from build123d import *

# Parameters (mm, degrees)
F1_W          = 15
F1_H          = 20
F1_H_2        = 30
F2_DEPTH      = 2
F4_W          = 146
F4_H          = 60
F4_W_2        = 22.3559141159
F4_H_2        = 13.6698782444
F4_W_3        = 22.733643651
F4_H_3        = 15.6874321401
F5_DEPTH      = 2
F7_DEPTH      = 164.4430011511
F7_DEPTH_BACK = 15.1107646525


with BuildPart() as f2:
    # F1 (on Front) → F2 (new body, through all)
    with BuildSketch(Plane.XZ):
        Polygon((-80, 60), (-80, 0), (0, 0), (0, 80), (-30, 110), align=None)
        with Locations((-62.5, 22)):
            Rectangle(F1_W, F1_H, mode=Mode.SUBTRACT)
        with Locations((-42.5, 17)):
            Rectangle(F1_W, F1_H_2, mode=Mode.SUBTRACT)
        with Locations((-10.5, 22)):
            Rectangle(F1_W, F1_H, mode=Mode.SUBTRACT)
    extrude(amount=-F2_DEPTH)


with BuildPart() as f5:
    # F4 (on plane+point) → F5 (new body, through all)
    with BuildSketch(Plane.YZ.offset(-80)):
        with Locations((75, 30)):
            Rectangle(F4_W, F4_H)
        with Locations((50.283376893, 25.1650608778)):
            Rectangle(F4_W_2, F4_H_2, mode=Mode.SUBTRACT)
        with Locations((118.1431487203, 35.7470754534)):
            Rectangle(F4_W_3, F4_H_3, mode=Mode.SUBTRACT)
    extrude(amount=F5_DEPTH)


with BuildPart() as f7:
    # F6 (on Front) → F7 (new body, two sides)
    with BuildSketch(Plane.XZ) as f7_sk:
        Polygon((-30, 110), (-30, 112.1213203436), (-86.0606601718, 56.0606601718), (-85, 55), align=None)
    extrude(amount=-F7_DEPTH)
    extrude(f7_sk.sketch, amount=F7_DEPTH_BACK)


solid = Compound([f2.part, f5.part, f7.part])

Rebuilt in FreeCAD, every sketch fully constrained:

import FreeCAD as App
import Part
import Sketcher

V = App.Vector
Q = App.Units.Quantity

doc = App.newDocument("Part")
body = doc.addObject("PartDesign::Body", "Body")

# Sketch on XZ plane
sketch1 = body.newObject("Sketcher::SketchObject", "Sketch")
sketch1.AttachmentSupport = (doc.getObject("XZ_Plane"), [""])
sketch1.MapMode = "FlatFace"
sketch1.addGeometry([
    Part.LineSegment(V(-80, 60, 0), V(-80, 0, 0)),  # 0
    Part.LineSegment(V(-80, 0, 0), V(0, 0, 0)),  # 1
    Part.LineSegment(V(0, 0, 0), V(0, 80, 0)),  # 2
    Part.LineSegment(V(0, 80, 0), V(-30, 110, 0)),  # 3
    Part.LineSegment(V(-30, 110, 0), V(-80, 60, 0)),  # 4
    Part.LineSegment(V(-55, 12, 0), V(-70, 12, 0)),  # 5
    Part.LineSegment(V(-70, 12, 0), V(-70, 32, 0)),  # 6
    Part.LineSegment(V(-70, 32, 0), V(-55, 32, 0)),  # 7
    Part.LineSegment(V(-55, 32, 0), V(-55, 12, 0)),  # 8
    Part.LineSegment(V(-35, 2, 0), V(-50, 2, 0)),  # 9
    Part.LineSegment(V(-50, 2, 0), V(-50, 32, 0)),  # 10
    Part.LineSegment(V(-50, 32, 0), V(-35, 32, 0)),  # 11
    Part.LineSegment(V(-35, 32, 0), V(-35, 2, 0)),  # 12
    Part.LineSegment(V(-3, 12, 0), V(-18, 12, 0)),  # 13
    Part.LineSegment(V(-18, 12, 0), V(-18, 32, 0)),  # 14
    Part.LineSegment(V(-18, 32, 0), V(-3, 32, 0)),  # 15
    Part.LineSegment(V(-3, 32, 0), V(-3, 12, 0)),  # 16
], False)
sketch1.addConstraint([
    Sketcher.Constraint("Coincident", 0, 2, 1, 1),
    Sketcher.Constraint("Coincident", 1, 2, 2, 1),
    Sketcher.Constraint("Coincident", 2, 2, 3, 1),
    Sketcher.Constraint("Coincident", 3, 2, 4, 1),
    Sketcher.Constraint("Coincident", 4, 2, 0, 1),
    Sketcher.Constraint("Coincident", 5, 2, 6, 1),
    Sketcher.Constraint("Coincident", 6, 2, 7, 1),
    Sketcher.Constraint("Coincident", 7, 2, 8, 1),
    Sketcher.Constraint("Coincident", 8, 2, 5, 1),
    Sketcher.Constraint("Coincident", 9, 2, 10, 1),
    Sketcher.Constraint("Coincident", 10, 2, 11, 1),
    Sketcher.Constraint("Coincident", 11, 2, 12, 1),
    Sketcher.Constraint("Coincident", 12, 2, 9, 1),
    Sketcher.Constraint("Coincident", 13, 2, 14, 1),
    Sketcher.Constraint("Coincident", 14, 2, 15, 1),
    Sketcher.Constraint("Coincident", 15, 2, 16, 1),
    Sketcher.Constraint("Coincident", 16, 2, 13, 1),
    Sketcher.Constraint("Vertical", 0),
    Sketcher.Constraint("Horizontal", 1),
    Sketcher.Constraint("Vertical", 2),
    Sketcher.Constraint("Horizontal", 5),
    Sketcher.Constraint("Vertical", 6),
    Sketcher.Constraint("Horizontal", 7),
    Sketcher.Constraint("Vertical", 8),
    Sketcher.Constraint("Horizontal", 9),
    Sketcher.Constraint("Vertical", 10),
    Sketcher.Constraint("Horizontal", 11),
    Sketcher.Constraint("Vertical", 12),
    Sketcher.Constraint("Horizontal", 13),
    Sketcher.Constraint("Vertical", 14),
    Sketcher.Constraint("Horizontal", 15),
    Sketcher.Constraint("Vertical", 16),
    Sketcher.Constraint("Coincident", 1, 2, -1, 1),
    Sketcher.Constraint("Perpendicular", 3, 4),
    Sketcher.Constraint("Horizontal", 7, 2, 10, 2),
    Sketcher.Constraint("Horizontal", 8, 2, 13, 2),
    Sketcher.Constraint("Horizontal", 11, 2, 14, 2),
    Sketcher.Constraint("Equal", 7, 9),
    Sketcher.Constraint("Equal", 11, 13),
    Sketcher.Constraint("Equal", 1, 2),
    Sketcher.Constraint("DistanceX", 1, 1, 1, 2, Q("80 mm")),
    Sketcher.Constraint("DistanceX", 5, 2, 5, 1, Q("15 mm")),
    Sketcher.Constraint("DistanceY", 0, 2, 0, 1, Q("60 mm")),
    Sketcher.Constraint("DistanceY", 6, 1, 6, 2, Q("20 mm")),
    Sketcher.Constraint("DistanceY", 10, 1, 10, 2, Q("30 mm")),
    Sketcher.Constraint("Angle", 3, Q("135 deg")),
    Sketcher.Constraint("DistanceX", 5, 2, -1, 1, Q("70 mm")),
    Sketcher.Constraint("DistanceY", -1, 1, 5, 2, Q("12 mm")),
    Sketcher.Constraint("DistanceX", 9, 2, -1, 1, Q("50 mm")),
    Sketcher.Constraint("DistanceX", 13, 2, -1, 1, Q("18 mm")),
])
pad1 = body.newObject("PartDesign::Pad", "Pad")
pad1.Profile = sketch1
pad1.Length = 2
pad1.Reversed = True
body2 = doc.addObject("PartDesign::Body", "Body001")

# Sketch on YZ plane
sketch2 = body2.newObject("Sketcher::SketchObject", "Sketch001")
sketch2.AttachmentSupport = (doc.getObject("YZ_Plane001"), [""])
sketch2.MapMode = "FlatFace"
sketch2.AttachmentOffset = App.Placement(V(0, 0, -80), App.Rotation())
sketch2.addGeometry([
    Part.LineSegment(V(2, 60, 0), V(2, 0, 0)),  # 0
    Part.LineSegment(V(2, 0, 0), V(148, 0, 0)),  # 1
    Part.LineSegment(V(148, 0, 0), V(148, 60, 0)),  # 2
    Part.LineSegment(V(148, 60, 0), V(2, 60, 0)),  # 3
    Part.LineSegment(V(61, 18, 0), V(39, 18, 0)),  # 4
    Part.LineSegment(V(39, 18, 0), V(39, 32, 0)),  # 5
    Part.LineSegment(V(39, 32, 0), V(61, 32, 0)),  # 6
    Part.LineSegment(V(61, 32, 0), V(61, 18, 0)),  # 7
    Part.LineSegment(V(130, 28, 0), V(107, 28, 0)),  # 8
    Part.LineSegment(V(107, 28, 0), V(107, 44, 0)),  # 9
    Part.LineSegment(V(107, 44, 0), V(130, 44, 0)),  # 10
    Part.LineSegment(V(130, 44, 0), V(130, 28, 0)),  # 11
], False)
sketch2.addConstraint([
    Sketcher.Constraint("Coincident", 0, 2, 1, 1),
    Sketcher.Constraint("Coincident", 1, 2, 2, 1),
    Sketcher.Constraint("Coincident", 2, 2, 3, 1),
    Sketcher.Constraint("Coincident", 3, 2, 0, 1),
    Sketcher.Constraint("Coincident", 4, 2, 5, 1),
    Sketcher.Constraint("Coincident", 5, 2, 6, 1),
    Sketcher.Constraint("Coincident", 6, 2, 7, 1),
    Sketcher.Constraint("Coincident", 7, 2, 4, 1),
    Sketcher.Constraint("Coincident", 8, 2, 9, 1),
    Sketcher.Constraint("Coincident", 9, 2, 10, 1),
    Sketcher.Constraint("Coincident", 10, 2, 11, 1),
    Sketcher.Constraint("Coincident", 11, 2, 8, 1),
    Sketcher.Constraint("Vertical", 0),
    Sketcher.Constraint("Horizontal", 1),
    Sketcher.Constraint("Vertical", 2),
    Sketcher.Constraint("Horizontal", 3),
    Sketcher.Constraint("Horizontal", 4),
    Sketcher.Constraint("Vertical", 5),
    Sketcher.Constraint("Horizontal", 6),
    Sketcher.Constraint("Vertical", 7),
    Sketcher.Constraint("Horizontal", 8),
    Sketcher.Constraint("Vertical", 9),
    Sketcher.Constraint("Horizontal", 10),
    Sketcher.Constraint("Vertical", 11),
    Sketcher.Constraint("PointOnObject", 0, 2, -1),
    Sketcher.Constraint("DistanceX", 1, 1, 1, 2, Q("146 mm")),
    Sketcher.Constraint("DistanceY", 0, 2, 0, 1, Q("60 mm")),
    Sketcher.Constraint("DistanceX", -1, 1, 0, 2, Q("2 mm")),
    Sketcher.Constraint("DistanceY", -1, 1, 5, 2, Q("32 mm")),
    Sketcher.Constraint("DistanceY", 5, 1, 5, 2, Q("13.669878 mm")),
    Sketcher.Constraint("DistanceX", 4, 2, 4, 1, Q("22.355914 mm")),
    Sketcher.Constraint("DistanceX", 8, 2, 8, 1, Q("22.733644 mm")),
    Sketcher.Constraint("DistanceY", 9, 1, 9, 2, Q("15.687432 mm")),
    Sketcher.Constraint("DistanceX", -1, 1, 4, 2, Q("39.10542 mm")),
    Sketcher.Constraint("DistanceY", -1, 1, 8, 2, Q("27.903359 mm")),
    Sketcher.Constraint("DistanceX", -1, 1, 10, 2, Q("129.509971 mm")),
])
pad2 = body2.newObject("PartDesign::Pad", "Pad001")
pad2.Profile = sketch2
pad2.Length = 2
body3 = doc.addObject("PartDesign::Body", "Body002")

# Sketch on XZ plane
sketch3 = body3.newObject("Sketcher::SketchObject", "Sketch002")
sketch3.AttachmentSupport = (doc.getObject("XZ_Plane002"), [""])
sketch3.MapMode = "FlatFace"
sketch3.addGeometry([
    Part.LineSegment(V(-30, 110, 0), V(-30, 112.1, 0)),
    Part.LineSegment(V(-30, 112.1, 0), V(-86.1, 56.1, 0)),
    Part.LineSegment(V(-86.1, 56.1, 0), V(-85, 55, 0)),
    Part.LineSegment(V(-85, 55, 0), V(-30, 110, 0)),
], False)
sketch3.addConstraint([
    Sketcher.Constraint("Coincident", 0, 2, 1, 1),
    Sketcher.Constraint("Coincident", 1, 2, 2, 1),
    Sketcher.Constraint("Coincident", 2, 2, 3, 1),
    Sketcher.Constraint("Coincident", 3, 2, 0, 1),
    Sketcher.Constraint("Vertical", 0),
    Sketcher.Constraint("Perpendicular", 1, 2),
    Sketcher.Constraint("Perpendicular", 2, 3),
    Sketcher.Constraint("Angle", 1, Q("-135 deg")),
    Sketcher.Constraint("DistanceX", 0, 2, -1, 1, Q("30 mm")),
    Sketcher.Constraint("DistanceX", 2, 2, -1, 1, Q("85 mm")),
    Sketcher.Constraint("DistanceY", -1, 1, 2, 2, Q("55 mm")),
    Sketcher.Constraint("Distance", 2, Q("1.5 mm")),
])
pad3 = body3.newObject("PartDesign::Pad", "Pad002")
pad3.Profile = sketch3
pad3.Type = "TwoLengths"
pad3.Length = 164.443001
pad3.Length2 = 15.110765
pad3.Reversed = True

doc.recompute()
